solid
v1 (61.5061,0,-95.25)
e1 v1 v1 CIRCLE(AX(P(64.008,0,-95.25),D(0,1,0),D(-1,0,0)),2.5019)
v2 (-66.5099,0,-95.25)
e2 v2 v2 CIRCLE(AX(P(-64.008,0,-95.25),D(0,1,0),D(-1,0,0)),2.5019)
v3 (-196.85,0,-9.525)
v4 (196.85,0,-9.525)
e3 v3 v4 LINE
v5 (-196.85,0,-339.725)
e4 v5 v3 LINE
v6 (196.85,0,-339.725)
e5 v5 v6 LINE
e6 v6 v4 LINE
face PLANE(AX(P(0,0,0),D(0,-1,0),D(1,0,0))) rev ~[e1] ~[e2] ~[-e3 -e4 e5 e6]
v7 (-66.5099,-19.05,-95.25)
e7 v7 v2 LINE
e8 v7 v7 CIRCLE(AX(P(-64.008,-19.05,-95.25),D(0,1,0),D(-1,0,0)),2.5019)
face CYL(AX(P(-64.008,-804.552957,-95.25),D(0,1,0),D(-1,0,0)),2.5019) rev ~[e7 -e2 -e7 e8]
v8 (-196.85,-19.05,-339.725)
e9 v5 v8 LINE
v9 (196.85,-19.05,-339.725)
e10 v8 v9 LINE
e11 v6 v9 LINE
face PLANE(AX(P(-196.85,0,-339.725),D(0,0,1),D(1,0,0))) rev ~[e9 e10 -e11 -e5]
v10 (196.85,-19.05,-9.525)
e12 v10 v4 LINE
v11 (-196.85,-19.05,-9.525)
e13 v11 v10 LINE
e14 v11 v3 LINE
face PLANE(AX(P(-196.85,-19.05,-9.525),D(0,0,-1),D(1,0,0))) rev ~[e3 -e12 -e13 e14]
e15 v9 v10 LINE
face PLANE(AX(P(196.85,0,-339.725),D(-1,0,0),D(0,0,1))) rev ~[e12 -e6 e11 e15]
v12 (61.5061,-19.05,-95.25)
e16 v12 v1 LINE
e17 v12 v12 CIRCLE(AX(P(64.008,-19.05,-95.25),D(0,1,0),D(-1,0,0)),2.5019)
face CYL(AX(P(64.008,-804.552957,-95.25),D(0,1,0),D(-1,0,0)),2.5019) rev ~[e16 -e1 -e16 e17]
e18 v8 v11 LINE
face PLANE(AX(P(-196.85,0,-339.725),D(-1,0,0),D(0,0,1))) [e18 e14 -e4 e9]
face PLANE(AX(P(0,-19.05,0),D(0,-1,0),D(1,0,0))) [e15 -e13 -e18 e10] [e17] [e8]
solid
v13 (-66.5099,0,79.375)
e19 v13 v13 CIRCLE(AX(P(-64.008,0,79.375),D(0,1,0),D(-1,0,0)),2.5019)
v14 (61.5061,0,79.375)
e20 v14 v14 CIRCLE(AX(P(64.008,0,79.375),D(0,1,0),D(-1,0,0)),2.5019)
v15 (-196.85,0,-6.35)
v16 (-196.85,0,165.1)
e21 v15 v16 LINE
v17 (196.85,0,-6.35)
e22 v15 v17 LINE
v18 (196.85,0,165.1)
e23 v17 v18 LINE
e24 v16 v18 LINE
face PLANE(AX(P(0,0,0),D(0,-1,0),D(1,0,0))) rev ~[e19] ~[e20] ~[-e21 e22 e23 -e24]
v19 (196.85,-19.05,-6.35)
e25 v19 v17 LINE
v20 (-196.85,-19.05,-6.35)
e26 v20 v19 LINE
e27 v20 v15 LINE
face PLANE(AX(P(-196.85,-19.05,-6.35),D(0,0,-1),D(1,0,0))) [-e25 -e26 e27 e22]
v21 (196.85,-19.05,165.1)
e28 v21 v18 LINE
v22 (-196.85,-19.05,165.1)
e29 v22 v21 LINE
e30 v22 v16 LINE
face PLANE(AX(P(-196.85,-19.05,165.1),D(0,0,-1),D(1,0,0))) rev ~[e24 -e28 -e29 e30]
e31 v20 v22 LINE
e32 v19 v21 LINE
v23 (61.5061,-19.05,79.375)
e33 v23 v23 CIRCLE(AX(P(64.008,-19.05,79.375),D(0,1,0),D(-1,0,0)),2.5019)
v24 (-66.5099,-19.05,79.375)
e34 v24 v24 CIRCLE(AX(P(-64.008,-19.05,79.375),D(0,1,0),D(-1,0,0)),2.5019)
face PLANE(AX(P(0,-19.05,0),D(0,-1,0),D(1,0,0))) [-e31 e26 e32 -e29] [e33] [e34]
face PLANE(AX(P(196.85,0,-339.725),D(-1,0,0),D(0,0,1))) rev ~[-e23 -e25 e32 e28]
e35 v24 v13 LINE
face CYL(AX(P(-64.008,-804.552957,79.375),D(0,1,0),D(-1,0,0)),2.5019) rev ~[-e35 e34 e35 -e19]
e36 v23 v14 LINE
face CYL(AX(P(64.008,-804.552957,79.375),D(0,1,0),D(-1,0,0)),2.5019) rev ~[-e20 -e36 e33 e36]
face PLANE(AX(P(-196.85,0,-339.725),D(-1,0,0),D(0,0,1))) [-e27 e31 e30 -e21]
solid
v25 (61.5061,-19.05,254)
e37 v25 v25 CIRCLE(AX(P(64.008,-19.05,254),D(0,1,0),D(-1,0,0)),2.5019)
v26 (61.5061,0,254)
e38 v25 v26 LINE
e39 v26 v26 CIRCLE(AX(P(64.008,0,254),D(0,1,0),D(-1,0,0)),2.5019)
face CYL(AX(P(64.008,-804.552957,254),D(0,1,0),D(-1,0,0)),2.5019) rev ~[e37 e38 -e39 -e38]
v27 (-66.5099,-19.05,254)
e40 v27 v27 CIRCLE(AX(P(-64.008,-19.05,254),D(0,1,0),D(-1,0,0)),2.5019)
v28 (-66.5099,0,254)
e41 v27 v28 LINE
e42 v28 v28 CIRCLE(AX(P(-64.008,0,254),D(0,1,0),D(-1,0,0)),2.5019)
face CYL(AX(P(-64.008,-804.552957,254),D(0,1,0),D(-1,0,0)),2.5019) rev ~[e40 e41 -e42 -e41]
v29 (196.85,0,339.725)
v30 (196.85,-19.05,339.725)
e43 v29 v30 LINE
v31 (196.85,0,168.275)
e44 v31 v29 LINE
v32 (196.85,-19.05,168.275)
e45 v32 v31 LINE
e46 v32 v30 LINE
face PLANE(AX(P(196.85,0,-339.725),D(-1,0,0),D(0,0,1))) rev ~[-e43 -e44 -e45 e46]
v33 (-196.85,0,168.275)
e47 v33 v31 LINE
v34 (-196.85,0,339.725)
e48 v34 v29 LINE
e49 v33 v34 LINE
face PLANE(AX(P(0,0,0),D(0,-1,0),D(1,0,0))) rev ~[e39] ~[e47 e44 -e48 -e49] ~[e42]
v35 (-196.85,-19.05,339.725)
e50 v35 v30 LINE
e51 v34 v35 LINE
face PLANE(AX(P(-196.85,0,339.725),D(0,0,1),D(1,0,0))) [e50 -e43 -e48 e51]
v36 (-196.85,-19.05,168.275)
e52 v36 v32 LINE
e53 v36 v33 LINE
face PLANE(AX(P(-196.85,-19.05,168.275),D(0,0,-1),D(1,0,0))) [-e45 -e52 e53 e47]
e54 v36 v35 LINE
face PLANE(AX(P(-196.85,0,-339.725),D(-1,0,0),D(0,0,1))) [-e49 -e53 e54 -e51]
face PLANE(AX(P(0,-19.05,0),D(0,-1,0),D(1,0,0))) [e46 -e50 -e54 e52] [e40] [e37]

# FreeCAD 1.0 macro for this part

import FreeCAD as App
import Part
import Sketcher
Q = App.Units.Quantity


def add_polygon(sketch, points):
    """Adds a closed chain of lines whose ends are joined by coincident constraints."""
    first, n = sketch.GeometryCount, len(points)
    for a, b in zip(points, points[1:] + points[:1]):
        sketch.addGeometry(Part.LineSegment(App.Vector(*a, 0), App.Vector(*b, 0)), False)
    for i in range(n):
        sketch.addConstraint(Sketcher.Constraint("Coincident", first + i, 2, first + (i + 1) % n, 1))

doc = App.newDocument("Part")
params = doc.addObject("Spreadsheet::Sheet", "Params")
for row, (alias, value) in enumerate([
    ("sketch1_width", "15.5 in"),
    ("sketch1_height", "26.75 in"),
    ("pad1_length", "0.75 in"),
    ("sketch2_width", "15.5 in"),
    ("sketch2_height", "0.125 in"),
    ("pocket1_length", "1 in"),
    ("sketch3_diameter", "0.197 in"),
    ("hole_diameter", "0.197 in"),
    ("sketch4_diameter", "0.197 in"),
    ("hole2_diameter", "0.197 in"),
    ("sketch5_diameter", "0.197 in"),
    ("hole3_diameter", "0.197 in"),
], start=1):
    params.set(f"A{row}", alias)
    params.set(f"B{row}", "=" + value)
    params.setAlias(f"B{row}", alias)

body = doc.addObject("PartDesign::Body", "Body")
body.AllowCompound = True

sketch1 = doc.addObject("Sketcher::SketchObject", "Sketch")
body.addObject(sketch1)
sketch1.AttachmentSupport = (doc.XZ_Plane, [""])
sketch1.MapMode = "FlatFace"
add_polygon(sketch1, [(-197, 340), (-197, -340), (197, -340), (197, 340)])
sketch1.addConstraint(Sketcher.Constraint("Vertical", 0))
sketch1.addConstraint(Sketcher.Constraint("Horizontal", 1))
sketch1.addConstraint(Sketcher.Constraint("Vertical", 2))
sketch1.addConstraint(Sketcher.Constraint("Horizontal", 3))
sketch1.addConstraint(Sketcher.Constraint("Symmetric", 0, 2, 2, 2, -1, 1))
sketch1.addConstraint(Sketcher.Constraint("DistanceX", 1, 1, 1, 2, Q("15.5 in")))
sketch1.addConstraint(Sketcher.Constraint("DistanceY", 0, 2, 0, 1, Q("26.75 in")))
sketch1.setExpression("Constraints[9]", "Params.sketch1_width")
sketch1.setExpression("Constraints[10]", "Params.sketch1_height")
pad1 = doc.addObject("PartDesign::Pad", "Pad")
body.addObject(pad1)
pad1.Profile = sketch1
pad1.setExpression("Length", "Params.pad1_length")

sketch2 = doc.addObject("Sketcher::SketchObject", "Sketch001")
body.addObject(sketch2)
sketch2.AttachmentSupport = (doc.XZ_Plane, [""])
sketch2.MapMode = "FlatFace"
sketch2.AttachmentOffset = App.Placement(App.Vector(0, 0, 0.75 * 25.4), App.Rotation())
add_polygon(sketch2, [(-196.8, 168.3), (-196.8, 165.1), (196.8, 165.1), (196.8, 168.3)])
add_polygon(sketch2, [(-196.8, -6.3), (-196.8, -9.5), (196.8, -9.5), (196.8, -6.3)])
sketch2.addConstraint(Sketcher.Constraint("Vertical", 0))
sketch2.addConstraint(Sketcher.Constraint("Horizontal", 1))
sketch2.addConstraint(Sketcher.Constraint("Vertical", 2))
sketch2.addConstraint(Sketcher.Constraint("Horizontal", 3))
sketch2.addConstraint(Sketcher.Constraint("Vertical", 4))
sketch2.addConstraint(Sketcher.Constraint("Horizontal", 5))
sketch2.addConstraint(Sketcher.Constraint("Vertical", 6))
sketch2.addConstraint(Sketcher.Constraint("Horizontal", 7))
sketch2.addConstraint(Sketcher.Constraint("Vertical", 3, 2, 4, 2))
sketch2.addConstraint(Sketcher.Constraint("Vertical", 2, 2, 5, 2))
sketch2.addConstraint(Sketcher.Constraint("Equal", 2, 4))
sketch2.addConstraint(Sketcher.Constraint("DistanceX", 1, 1, 1, 2, Q("15.5 in")))
sketch2.addConstraint(Sketcher.Constraint("DistanceY", 4, 2, 3, 2, Q("7 in")))
sketch2.addConstraint(Sketcher.Constraint("DistanceY", -1, 1, 0, 2, Q("6.5 in")))
sketch2.addConstraint(Sketcher.Constraint("DistanceY", 0, 2, 0, 1, Q("0.125 in")))
sketch2.addConstraint(Sketcher.Constraint("DistanceX", 0, 2, -1, 1, Q("7.75 in")))
sketch2.setExpression("Constraints[19]", "Params.sketch2_width")
sketch2.setExpression("Constraints[22]", "Params.sketch2_height")
pocket1 = doc.addObject("PartDesign::Pocket", "Pocket")
body.addObject(pocket1)
pocket1.Profile = sketch2
pocket1.setExpression("Length", "Params.pocket1_length")

sketch3 = doc.addObject("Sketcher::SketchObject", "Sketch002")
body.addObject(sketch3)
sketch3.AttachmentSupport = (doc.XZ_Plane, [""])
sketch3.MapMode = "FlatFace"
sketch3.AttachmentOffset = App.Placement(App.Vector(0, 0, 0.75 * 25.4), App.Rotation())
sketch3.addGeometry(Part.Circle(App.Vector(-64, 254, 0), App.Vector(0, 0, 1), 2.5), False)
sketch3.addGeometry(Part.Circle(App.Vector(64, 254, 0), App.Vector(0, 0, 1), 2.5), False)
sketch3.addConstraint(Sketcher.Constraint("Equal", 0, 1))
sketch3.addConstraint(Sketcher.Constraint("Symmetric", 0, 3, 1, 3, -2))
sketch3.addConstraint(Sketcher.Constraint("Diameter", 0, Q("0.197 in")))
sketch3.addConstraint(Sketcher.Constraint("DistanceY", -1, 1, 0, 3, Q("10 in")))
sketch3.addConstraint(Sketcher.Constraint("DistanceX", 0, 3, -1, 1, Q("2.52 in")))
sketch3.setExpression("Constraints[2]", "Params.sketch3_diameter")
doc.recompute()
hole = doc.addObject("PartDesign::Hole", "Hole")
body.addObject(hole)
hole.Profile = sketch3
hole.ThreadType = "None"
hole.setExpression("Diameter", "Params.hole_diameter")
hole.DepthType = "ThroughAll"

sketch4 = doc.addObject("Sketcher::SketchObject", "Sketch003")
body.addObject(sketch4)
sketch4.AttachmentSupport = (doc.XZ_Plane, [""])
sketch4.MapMode = "FlatFace"
sketch4.AttachmentOffset = App.Placement(App.Vector(0, 0, 0.75 * 25.4), App.Rotation())
sketch4.addGeometry(Part.Circle(App.Vector(-64, 79.4, 0), App.Vector(0, 0, 1), 2.5), False)
sketch4.addGeometry(Part.Circle(App.Vector(64, 79.4, 0), App.Vector(0, 0, 1), 2.5), False)
sketch4.addConstraint(Sketcher.Constraint("Equal", 0, 1))
sketch4.addConstraint(Sketcher.Constraint("Symmetric", 0, 3, 1, 3, -2))
sketch4.addConstraint(Sketcher.Constraint("Diameter", 0, Q("0.197 in")))
sketch4.addConstraint(Sketcher.Constraint("DistanceX", 0, 3, -1, 1, Q("2.52 in")))
sketch4.addConstraint(Sketcher.Constraint("DistanceY", -1, 1, 0, 3, Q("3.125 in")))
sketch4.setExpression("Constraints[2]", "Params.sketch4_diameter")
doc.recompute()
hole2 = doc.addObject("PartDesign::Hole", "Hole001")
body.addObject(hole2)
hole2.Profile = sketch4
hole2.ThreadType = "None"
hole2.setExpression("Diameter", "Params.hole2_diameter")
hole2.DepthType = "ThroughAll"

sketch5 = doc.addObject("Sketcher::SketchObject", "Sketch004")
body.addObject(sketch5)
sketch5.AttachmentSupport = (doc.XZ_Plane, [""])
sketch5.MapMode = "FlatFace"
sketch5.AttachmentOffset = App.Placement(App.Vector(0, 0, 0.75 * 25.4), App.Rotation())
sketch5.addGeometry(Part.Circle(App.Vector(64, -95.2, 0), App.Vector(0, 0, 1), 2.5), False)
sketch5.addGeometry(Part.Circle(App.Vector(-64, -95.2, 0), App.Vector(0, 0, 1), 2.5), False)
sketch5.addConstraint(Sketcher.Constraint("Equal", 0, 1))
sketch5.addConstraint(Sketcher.Constraint("Symmetric", 0, 3, 1, 3, -2))
sketch5.addConstraint(Sketcher.Constraint("Diameter", 0, Q("0.197 in")))
sketch5.addConstraint(Sketcher.Constraint("DistanceX", -1, 1, 0, 3, Q("2.52 in")))
sketch5.addConstraint(Sketcher.Constraint("DistanceY", 0, 3, -1, 1, Q("3.75 in")))
sketch5.setExpression("Constraints[2]", "Params.sketch5_diameter")
doc.recompute()
hole3 = doc.addObject("PartDesign::Hole", "Hole002")
body.addObject(hole3)
hole3.Profile = sketch5
hole3.ThreadType = "None"
hole3.setExpression("Diameter", "Params.hole3_diameter")
hole3.DepthType = "ThroughAll"

doc.recompute()
